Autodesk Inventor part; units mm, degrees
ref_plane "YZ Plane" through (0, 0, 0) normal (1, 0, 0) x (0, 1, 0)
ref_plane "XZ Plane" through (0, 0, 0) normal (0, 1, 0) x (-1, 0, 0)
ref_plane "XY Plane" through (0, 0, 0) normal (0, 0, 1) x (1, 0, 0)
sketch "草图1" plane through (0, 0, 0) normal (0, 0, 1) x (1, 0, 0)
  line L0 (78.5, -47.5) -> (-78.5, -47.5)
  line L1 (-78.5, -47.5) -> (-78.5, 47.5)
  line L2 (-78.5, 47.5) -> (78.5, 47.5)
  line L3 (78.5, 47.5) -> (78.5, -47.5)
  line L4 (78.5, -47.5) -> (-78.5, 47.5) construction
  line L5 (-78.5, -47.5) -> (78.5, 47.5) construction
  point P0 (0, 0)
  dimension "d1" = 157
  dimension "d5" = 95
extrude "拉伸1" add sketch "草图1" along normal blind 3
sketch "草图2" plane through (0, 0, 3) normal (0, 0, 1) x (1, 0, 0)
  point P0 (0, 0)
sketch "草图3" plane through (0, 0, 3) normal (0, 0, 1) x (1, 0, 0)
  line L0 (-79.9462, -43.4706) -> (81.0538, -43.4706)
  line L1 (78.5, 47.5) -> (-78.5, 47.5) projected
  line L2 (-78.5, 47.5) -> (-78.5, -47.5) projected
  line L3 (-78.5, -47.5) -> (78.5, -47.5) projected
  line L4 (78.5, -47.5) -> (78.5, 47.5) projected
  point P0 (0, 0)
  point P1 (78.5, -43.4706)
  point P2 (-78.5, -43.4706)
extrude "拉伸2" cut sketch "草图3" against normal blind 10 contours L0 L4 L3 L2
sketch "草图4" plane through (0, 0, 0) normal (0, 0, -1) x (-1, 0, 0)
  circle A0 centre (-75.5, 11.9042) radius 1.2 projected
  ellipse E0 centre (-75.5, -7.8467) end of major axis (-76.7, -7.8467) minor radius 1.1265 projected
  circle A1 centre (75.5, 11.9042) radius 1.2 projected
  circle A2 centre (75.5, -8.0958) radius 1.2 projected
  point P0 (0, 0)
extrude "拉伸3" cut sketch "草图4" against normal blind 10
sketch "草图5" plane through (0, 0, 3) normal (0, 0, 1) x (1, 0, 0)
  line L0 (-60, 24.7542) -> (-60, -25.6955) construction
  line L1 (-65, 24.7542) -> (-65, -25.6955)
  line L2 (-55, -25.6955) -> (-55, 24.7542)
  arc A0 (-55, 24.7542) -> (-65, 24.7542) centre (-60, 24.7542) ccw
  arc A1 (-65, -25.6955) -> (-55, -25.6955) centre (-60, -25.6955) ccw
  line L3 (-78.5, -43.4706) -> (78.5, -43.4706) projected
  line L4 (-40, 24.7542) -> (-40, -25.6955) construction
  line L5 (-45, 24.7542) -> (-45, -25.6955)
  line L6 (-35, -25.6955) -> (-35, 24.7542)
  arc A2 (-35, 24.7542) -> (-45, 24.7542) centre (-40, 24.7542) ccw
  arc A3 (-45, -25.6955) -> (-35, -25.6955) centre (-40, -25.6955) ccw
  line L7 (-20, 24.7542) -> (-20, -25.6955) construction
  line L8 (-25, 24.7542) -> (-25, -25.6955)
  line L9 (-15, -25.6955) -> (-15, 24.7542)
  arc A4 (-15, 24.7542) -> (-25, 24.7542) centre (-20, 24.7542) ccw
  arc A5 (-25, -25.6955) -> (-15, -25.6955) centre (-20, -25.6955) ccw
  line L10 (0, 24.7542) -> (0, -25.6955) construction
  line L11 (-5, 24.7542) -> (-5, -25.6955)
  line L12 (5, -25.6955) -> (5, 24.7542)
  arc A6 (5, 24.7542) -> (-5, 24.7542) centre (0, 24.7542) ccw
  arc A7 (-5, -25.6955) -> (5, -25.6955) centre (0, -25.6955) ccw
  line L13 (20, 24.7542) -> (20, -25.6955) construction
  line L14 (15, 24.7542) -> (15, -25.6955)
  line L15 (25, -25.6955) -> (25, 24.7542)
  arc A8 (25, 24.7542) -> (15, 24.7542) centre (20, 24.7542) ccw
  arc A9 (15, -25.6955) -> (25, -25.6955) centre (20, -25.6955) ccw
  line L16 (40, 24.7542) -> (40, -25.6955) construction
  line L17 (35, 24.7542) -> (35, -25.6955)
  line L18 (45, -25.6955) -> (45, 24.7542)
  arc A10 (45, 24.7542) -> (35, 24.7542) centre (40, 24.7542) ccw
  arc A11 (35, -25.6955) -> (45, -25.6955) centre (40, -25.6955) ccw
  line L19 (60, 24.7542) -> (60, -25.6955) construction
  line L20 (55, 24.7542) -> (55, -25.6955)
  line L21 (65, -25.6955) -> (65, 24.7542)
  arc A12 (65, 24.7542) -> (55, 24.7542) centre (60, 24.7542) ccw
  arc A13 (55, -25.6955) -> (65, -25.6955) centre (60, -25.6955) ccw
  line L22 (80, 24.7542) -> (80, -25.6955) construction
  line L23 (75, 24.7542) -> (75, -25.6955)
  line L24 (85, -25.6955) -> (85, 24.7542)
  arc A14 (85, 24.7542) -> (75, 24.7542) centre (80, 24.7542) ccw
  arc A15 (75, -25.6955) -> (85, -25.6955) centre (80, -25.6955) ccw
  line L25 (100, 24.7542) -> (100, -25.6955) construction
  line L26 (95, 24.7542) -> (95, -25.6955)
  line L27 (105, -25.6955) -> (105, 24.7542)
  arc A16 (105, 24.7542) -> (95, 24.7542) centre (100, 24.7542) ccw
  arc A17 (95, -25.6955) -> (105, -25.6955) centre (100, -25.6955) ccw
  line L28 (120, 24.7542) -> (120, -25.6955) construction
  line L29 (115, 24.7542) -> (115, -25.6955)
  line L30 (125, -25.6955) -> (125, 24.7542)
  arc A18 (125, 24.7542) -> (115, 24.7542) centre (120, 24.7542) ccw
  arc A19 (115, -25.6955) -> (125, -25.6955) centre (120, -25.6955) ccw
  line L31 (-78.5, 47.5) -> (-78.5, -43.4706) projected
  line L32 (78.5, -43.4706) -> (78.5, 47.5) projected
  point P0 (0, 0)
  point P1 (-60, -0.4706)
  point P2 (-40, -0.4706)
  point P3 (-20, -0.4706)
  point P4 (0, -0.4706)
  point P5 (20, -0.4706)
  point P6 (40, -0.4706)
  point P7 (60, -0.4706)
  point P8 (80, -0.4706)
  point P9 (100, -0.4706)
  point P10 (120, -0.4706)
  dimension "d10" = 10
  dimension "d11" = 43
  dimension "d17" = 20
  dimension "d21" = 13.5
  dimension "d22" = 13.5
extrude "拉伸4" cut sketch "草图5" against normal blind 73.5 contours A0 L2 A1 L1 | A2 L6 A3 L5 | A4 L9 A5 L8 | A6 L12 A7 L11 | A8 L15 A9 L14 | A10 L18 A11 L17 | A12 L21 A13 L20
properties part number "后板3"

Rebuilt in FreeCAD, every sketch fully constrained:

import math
import FreeCAD as App
import Part
import Sketcher

V = App.Vector
Q = App.Units.Quantity

doc = App.newDocument("Part")
body = doc.addObject("PartDesign::Body", "Body")

# Sketch on XY plane
sketch1 = doc.addObject("Sketcher::SketchObject", "Sketch")
body.addObject(sketch1)
sketch1.AttachmentSupport = (doc.XY_Plane, [""])
sketch1.MapMode = "FlatFace"
sketch1.addGeometry(Part.LineSegment(V(-78, -48, 0), V(78, -48, 0)), False)
sketch1.addGeometry(Part.LineSegment(V(78, -48, 0), V(78, 48, 0)), False)
sketch1.addGeometry(Part.LineSegment(V(78, 48, 0), V(-78, 48, 0)), False)
sketch1.addGeometry(Part.LineSegment(V(-78, 48, 0), V(-78, -48, 0)), False)
sketch1.addConstraint(Sketcher.Constraint("Coincident", 0, 2, 1, 1))
sketch1.addConstraint(Sketcher.Constraint("Coincident", 1, 2, 2, 1))
sketch1.addConstraint(Sketcher.Constraint("Coincident", 2, 2, 3, 1))
sketch1.addConstraint(Sketcher.Constraint("Coincident", 3, 2, 0, 1))
sketch1.addConstraint(Sketcher.Constraint("Horizontal", 0))
sketch1.addConstraint(Sketcher.Constraint("Vertical", 1))
sketch1.addConstraint(Sketcher.Constraint("Horizontal", 2))
sketch1.addConstraint(Sketcher.Constraint("Vertical", 3))
sketch1.addConstraint(Sketcher.Constraint("Symmetric", 0, 2, 2, 2, -1, 1))
sketch1.addConstraint(Sketcher.Constraint("DistanceX", 0, 1, 0, 2, Q("157 mm")))
sketch1.addConstraint(Sketcher.Constraint("DistanceY", 1, 1, 1, 2, Q("95 mm")))
pad1 = doc.addObject("PartDesign::Pad", "Pad")
body.addObject(pad1)
pad1.Profile = sketch1
pad1.Length = 3

# Sketch on XY plane
sketch2 = doc.addObject("Sketcher::SketchObject", "Sketch001")
body.addObject(sketch2)
sketch2.AttachmentSupport = (doc.XY_Plane, [""])
sketch2.MapMode = "FlatFace"
sketch2.AttachmentOffset = App.Placement(V(0, 0, 3), App.Rotation())
sketch2.addGeometry(Part.LineSegment(V(78.5, -43.5, 0), V(-78.5, -43.5, 0)), False)
sketch2.addGeometry(Part.LineSegment(V(-78.5, -43.5, 0), V(-78.5, -47.5, 0)), False)
sketch2.addGeometry(Part.LineSegment(V(-78.5, -47.5, 0), V(78.5, -47.5, 0)), False)
sketch2.addGeometry(Part.LineSegment(V(78.5, -47.5, 0), V(78.5, -43.5, 0)), False)
sketch2.addConstraint(Sketcher.Constraint("Coincident", 0, 2, 1, 1))
sketch2.addConstraint(Sketcher.Constraint("Coincident", 1, 2, 2, 1))
sketch2.addConstraint(Sketcher.Constraint("Coincident", 2, 2, 3, 1))
sketch2.addConstraint(Sketcher.Constraint("Coincident", 3, 2, 0, 1))
sketch2.addConstraint(Sketcher.Constraint("Horizontal", 0))
sketch2.addConstraint(Sketcher.Constraint("Vertical", 1))
sketch2.addConstraint(Sketcher.Constraint("Horizontal", 2))
sketch2.addConstraint(Sketcher.Constraint("Vertical", 3))
sketch2.addConstraint(Sketcher.Constraint("DistanceX", 0, 2, 0, 1, Q("157 mm")))
sketch2.addConstraint(Sketcher.Constraint("DistanceX", 0, 2, -1, 1, Q("78.5 mm")))
sketch2.addConstraint(Sketcher.Constraint("DistanceY", 1, 2, -1, 1, Q("47.5 mm")))
sketch2.addConstraint(Sketcher.Constraint("DistanceY", 1, 2, 1, 1, Q("4.0294 mm")))
pocket1 = doc.addObject("PartDesign::Pocket", "Pocket")
body.addObject(pocket1)
pocket1.Profile = sketch2
pocket1.Length = 10

# Sketch on XY plane
sketch3 = doc.addObject("Sketcher::SketchObject", "Sketch002")
body.addObject(sketch3)
sketch3.AttachmentSupport = (doc.XY_Plane, [""])
sketch3.MapMode = "FlatFace"
sketch3.addGeometry(Part.Circle(V(75.5, 11.9042, 0), V(0, 0, 1), 1.2), False)
sketch3.addGeometry(Part.Ellipse(V(76.7, -7.8467, 0), V(75.5, -6.7202, 0), V(75.5, -7.8467, 0)), False)
sketch3.addGeometry(Part.Circle(V(-75.5, 11.9042, 0), V(0, 0, 1), 1.2), False)
sketch3.addGeometry(Part.Circle(V(-75.5, -8.0958, 0), V(0, 0, 1), 1.2), False)
sketch3.addConstraint(Sketcher.Constraint("Block", 1))
sketch3.addConstraint(Sketcher.Constraint("Equal", 0, 2))
sketch3.addConstraint(Sketcher.Constraint("Equal", 2, 3))
sketch3.addConstraint(Sketcher.Constraint("Symmetric", 0, 3, 2, 3, -2))
sketch3.addConstraint(Sketcher.Constraint("Vertical", 2, 3, 3, 3))
sketch3.addConstraint(Sketcher.Constraint("Diameter", 0, Q("2.4 mm")))
sketch3.addConstraint(Sketcher.Constraint("DistanceX", 2, 3, 0, 3, Q("151 mm")))
sketch3.addConstraint(Sketcher.Constraint("DistanceY", 3, 3, 2, 3, Q("20 mm")))
sketch3.addConstraint(Sketcher.Constraint("DistanceY", -1, 1, 0, 3, Q("11.9042 mm")))
pocket2 = doc.addObject("PartDesign::Pocket", "Pocket001")
body.addObject(pocket2)
pocket2.Profile = sketch3
pocket2.Length = 10
pocket2.Reversed = True

# Sketch on XY plane
sketch4 = doc.addObject("Sketcher::SketchObject", "Sketch003")
body.addObject(sketch4)
sketch4.AttachmentSupport = (doc.XY_Plane, [""])
sketch4.MapMode = "FlatFace"
sketch4.AttachmentOffset = App.Placement(V(0, 0, 3), App.Rotation())
sketch4.addGeometry(Part.ArcOfCircle(Part.Circle(V(-60, 25, 0), V(0, 0, 1), 5), math.radians(0), math.radians(180)), False)
sketch4.addGeometry(Part.LineSegment(V(-65, 25, 0), V(-65, -26, 0)), False)
sketch4.addGeometry(Part.ArcOfCircle(Part.Circle(V(-60, -26, 0), V(0, 0, 1), 5), math.radians(180), math.radians(360)), False)
sketch4.addGeometry(Part.LineSegment(V(-55, -26, 0), V(-55, 25, 0)), False)
sketch4.addGeometry(Part.ArcOfCircle(Part.Circle(V(-40, 25, 0), V(0, 0, 1), 5), math.radians(0), math.radians(180)), False)
sketch4.addGeometry(Part.LineSegment(V(-45, 25, 0), V(-45, -26, 0)), False)
sketch4.addGeometry(Part.ArcOfCircle(Part.Circle(V(-40, -26, 0), V(0, 0, 1), 5), math.radians(180), math.radians(360)), False)
sketch4.addGeometry(Part.LineSegment(V(-35, -26, 0), V(-35, 25, 0)), False)
sketch4.addGeometry(Part.ArcOfCircle(Part.Circle(V(-20, 25, 0), V(0, 0, 1), 5), math.radians(0), math.radians(180)), False)
sketch4.addGeometry(Part.LineSegment(V(-25, 25, 0), V(-25, -26, 0)), False)
sketch4.addGeometry(Part.ArcOfCircle(Part.Circle(V(-20, -26, 0), V(0, 0, 1), 5), math.radians(180), math.radians(360)), False)
sketch4.addGeometry(Part.LineSegment(V(-15, -26, 0), V(-15, 25, 0)), False)
sketch4.addGeometry(Part.ArcOfCircle(Part.Circle(V(0, 25, 0), V(0, 0, 1), 5), math.radians(0), math.radians(180)), False)
sketch4.addGeometry(Part.LineSegment(V(-5, 25, 0), V(-5, -26, 0)), False)
sketch4.addGeometry(Part.ArcOfCircle(Part.Circle(V(0, -26, 0), V(0, 0, 1), 5), math.radians(180), math.radians(360)), False)
sketch4.addGeometry(Part.LineSegment(V(5, -26, 0), V(5, 25, 0)), False)
sketch4.addGeometry(Part.ArcOfCircle(Part.Circle(V(20, 25, 0), V(0, 0, 1), 5), math.radians(0), math.radians(180)), False)
sketch4.addGeometry(Part.LineSegment(V(15, 25, 0), V(15, -26, 0)), False)
sketch4.addGeometry(Part.ArcOfCircle(Part.Circle(V(20, -26, 0), V(0, 0, 1), 5), math.radians(180), math.radians(360)), False)
sketch4.addGeometry(Part.LineSegment(V(25, -26, 0), V(25, 25, 0)), False)
sketch4.addGeometry(Part.ArcOfCircle(Part.Circle(V(40, 25, 0), V(0, 0, 1), 5), math.radians(0), math.radians(180)), False)
sketch4.addGeometry(Part.LineSegment(V(35, 25, 0), V(35, -26, 0)), False)
sketch4.addGeometry(Part.ArcOfCircle(Part.Circle(V(40, -26, 0), V(0, 0, 1), 5), math.radians(180), math.radians(360)), False)
sketch4.addGeometry(Part.LineSegment(V(45, -26, 0), V(45, 25, 0)), False)
sketch4.addGeometry(Part.ArcOfCircle(Part.Circle(V(60, 25, 0), V(0, 0, 1), 5), math.radians(0), math.radians(180)), False)
sketch4.addGeometry(Part.LineSegment(V(55, 25, 0), V(55, -26, 0)), False)
sketch4.addGeometry(Part.ArcOfCircle(Part.Circle(V(60, -26, 0), V(0, 0, 1), 5), math.radians(180), math.radians(360)), False)
sketch4.addGeometry(Part.LineSegment(V(65, -26, 0), V(65, 25, 0)), False)
sketch4.addConstraint(Sketcher.Constraint("Tangent", 0, 2, 1, 1))
sketch4.addConstraint(Sketcher.Constraint("Tangent", 1, 2, 2, 1))
sketch4.addConstraint(Sketcher.Constraint("Tangent", 2, 2, 3, 1))
sketch4.addConstraint(Sketcher.Constraint("Tangent", 3, 2, 0, 1))
sketch4.addConstraint(Sketcher.Constraint("Tangent", 4, 2, 5, 1))
sketch4.addConstraint(Sketcher.Constraint("Tangent", 5, 2, 6, 1))
sketch4.addConstraint(Sketcher.Constraint("Tangent", 6, 2, 7, 1))
sketch4.addConstraint(Sketcher.Constraint("Tangent", 7, 2, 4, 1))
sketch4.addConstraint(Sketcher.Constraint("Tangent", 8, 2, 9, 1))
sketch4.addConstraint(Sketcher.Constraint("Tangent", 9, 2, 10, 1))
sketch4.addConstraint(Sketcher.Constraint("Tangent", 10, 2, 11, 1))
sketch4.addConstraint(Sketcher.Constraint("Tangent", 11, 2, 8, 1))
sketch4.addConstraint(Sketcher.Constraint("Tangent", 12, 2, 13, 1))
sketch4.addConstraint(Sketcher.Constraint("Tangent", 13, 2, 14, 1))
sketch4.addConstraint(Sketcher.Constraint("Tangent", 14, 2, 15, 1))
sketch4.addConstraint(Sketcher.Constraint("Tangent", 15, 2, 12, 1))
sketch4.addConstraint(Sketcher.Constraint("Tangent", 16, 2, 17, 1))
sketch4.addConstraint(Sketcher.Constraint("Tangent", 17, 2, 18, 1))
sketch4.addConstraint(Sketcher.Constraint("Tangent", 18, 2, 19, 1))
sketch4.addConstraint(Sketcher.Constraint("Tangent", 19, 2, 16, 1))
sketch4.addConstraint(Sketcher.Constraint("Tangent", 20, 2, 21, 1))
sketch4.addConstraint(Sketcher.Constraint("Tangent", 21, 2, 22, 1))
sketch4.addConstraint(Sketcher.Constraint("Tangent", 22, 2, 23, 1))
sketch4.addConstraint(Sketcher.Constraint("Tangent", 23, 2, 20, 1))
sketch4.addConstraint(Sketcher.Constraint("Tangent", 24, 2, 25, 1))
sketch4.addConstraint(Sketcher.Constraint("Tangent", 25, 2, 26, 1))
sketch4.addConstraint(Sketcher.Constraint("Tangent", 26, 2, 27, 1))
sketch4.addConstraint(Sketcher.Constraint("Tangent", 27, 2, 24, 1))
sketch4.addConstraint(Sketcher.Constraint("Vertical", 1))
sketch4.addConstraint(Sketcher.Constraint("Vertical", 3))
sketch4.addConstraint(Sketcher.Constraint("Vertical", 5))
sketch4.addConstraint(Sketcher.Constraint("Vertical", 7))
sketch4.addConstraint(Sketcher.Constraint("Vertical", 9))
sketch4.addConstraint(Sketcher.Constraint("Vertical", 11))
sketch4.addConstraint(Sketcher.Constraint("Vertical", 13))
sketch4.addConstraint(Sketcher.Constraint("Vertical", 15))
sketch4.addConstraint(Sketcher.Constraint("Vertical", 17))
sketch4.addConstraint(Sketcher.Constraint("Vertical", 19))
sketch4.addConstraint(Sketcher.Constraint("Vertical", 21))
sketch4.addConstraint(Sketcher.Constraint("Vertical", 23))
sketch4.addConstraint(Sketcher.Constraint("Vertical", 25))
sketch4.addConstraint(Sketcher.Constraint("Vertical", 27))
sketch4.addConstraint(Sketcher.Constraint("Equal", 2, 4))
sketch4.addConstraint(Sketcher.Constraint("Equal", 6, 8))
sketch4.addConstraint(Sketcher.Constraint("Equal", 10, 12))
sketch4.addConstraint(Sketcher.Constraint("Equal", 14, 16))
sketch4.addConstraint(Sketcher.Constraint("Equal", 18, 20))
sketch4.addConstraint(Sketcher.Constraint("Equal", 22, 24))
sketch4.addConstraint(Sketcher.Constraint("Symmetric", 8, 3, 16, 3, -2))
sketch4.addConstraint(Sketcher.Constraint("Symmetric", 4, 3, 20, 3, -2))
sketch4.addConstraint(Sketcher.Constraint("Symmetric", 0, 3, 24, 3, -2))
sketch4.addConstraint(Sketcher.Constraint("PointOnObject", 12, 3, -2))
sketch4.addConstraint(Sketcher.Constraint("Horizontal", 0, 3, 4, 3))
sketch4.addConstraint(Sketcher.Constraint("Horizontal", 2, 3, 6, 3))
sketch4.addConstraint(Sketcher.Constraint("Horizontal", 4, 3, 8, 3))
sketch4.addConstraint(Sketcher.Constraint("Horizontal", 6, 3, 10, 3))
sketch4.addConstraint(Sketcher.Constraint("Horizontal", 8, 3, 12, 3))
sketch4.addConstraint(Sketcher.Constraint("Horizontal", 10, 3, 14, 3))
sketch4.addConstraint(Sketcher.Constraint("Horizontal", 14, 3, 18, 3))
sketch4.addConstraint(Sketcher.Constraint("Horizontal", 18, 3, 22, 3))
sketch4.addConstraint(Sketcher.Constraint("Horizontal", 22, 3, 26, 3))
sketch4.addConstraint(Sketcher.Constraint("Radius", 0, Q("5 mm")))
sketch4.addConstraint(Sketcher.Constraint("DistanceX", 8, 3, -1, 1, Q("20 mm")))
sketch4.addConstraint(Sketcher.Constraint("DistanceX", 0, 3, 4, 3, Q("20 mm")))
sketch4.addConstraint(Sketcher.Constraint("DistanceX", 4, 3, 8, 3, Q("20 mm")))
sketch4.addConstraint(Sketcher.Constraint("DistanceY", 1, 2, 1, 1, Q("50.4497 mm")))
sketch4.addConstraint(Sketcher.Constraint("DistanceY", -1, 1, 0, 3, Q("24.7542 mm")))
pocket3 = doc.addObject("PartDesign::Pocket", "Pocket002")
body.addObject(pocket3)
pocket3.Profile = sketch4
pocket3.Length = 73.5

doc.recompute()
